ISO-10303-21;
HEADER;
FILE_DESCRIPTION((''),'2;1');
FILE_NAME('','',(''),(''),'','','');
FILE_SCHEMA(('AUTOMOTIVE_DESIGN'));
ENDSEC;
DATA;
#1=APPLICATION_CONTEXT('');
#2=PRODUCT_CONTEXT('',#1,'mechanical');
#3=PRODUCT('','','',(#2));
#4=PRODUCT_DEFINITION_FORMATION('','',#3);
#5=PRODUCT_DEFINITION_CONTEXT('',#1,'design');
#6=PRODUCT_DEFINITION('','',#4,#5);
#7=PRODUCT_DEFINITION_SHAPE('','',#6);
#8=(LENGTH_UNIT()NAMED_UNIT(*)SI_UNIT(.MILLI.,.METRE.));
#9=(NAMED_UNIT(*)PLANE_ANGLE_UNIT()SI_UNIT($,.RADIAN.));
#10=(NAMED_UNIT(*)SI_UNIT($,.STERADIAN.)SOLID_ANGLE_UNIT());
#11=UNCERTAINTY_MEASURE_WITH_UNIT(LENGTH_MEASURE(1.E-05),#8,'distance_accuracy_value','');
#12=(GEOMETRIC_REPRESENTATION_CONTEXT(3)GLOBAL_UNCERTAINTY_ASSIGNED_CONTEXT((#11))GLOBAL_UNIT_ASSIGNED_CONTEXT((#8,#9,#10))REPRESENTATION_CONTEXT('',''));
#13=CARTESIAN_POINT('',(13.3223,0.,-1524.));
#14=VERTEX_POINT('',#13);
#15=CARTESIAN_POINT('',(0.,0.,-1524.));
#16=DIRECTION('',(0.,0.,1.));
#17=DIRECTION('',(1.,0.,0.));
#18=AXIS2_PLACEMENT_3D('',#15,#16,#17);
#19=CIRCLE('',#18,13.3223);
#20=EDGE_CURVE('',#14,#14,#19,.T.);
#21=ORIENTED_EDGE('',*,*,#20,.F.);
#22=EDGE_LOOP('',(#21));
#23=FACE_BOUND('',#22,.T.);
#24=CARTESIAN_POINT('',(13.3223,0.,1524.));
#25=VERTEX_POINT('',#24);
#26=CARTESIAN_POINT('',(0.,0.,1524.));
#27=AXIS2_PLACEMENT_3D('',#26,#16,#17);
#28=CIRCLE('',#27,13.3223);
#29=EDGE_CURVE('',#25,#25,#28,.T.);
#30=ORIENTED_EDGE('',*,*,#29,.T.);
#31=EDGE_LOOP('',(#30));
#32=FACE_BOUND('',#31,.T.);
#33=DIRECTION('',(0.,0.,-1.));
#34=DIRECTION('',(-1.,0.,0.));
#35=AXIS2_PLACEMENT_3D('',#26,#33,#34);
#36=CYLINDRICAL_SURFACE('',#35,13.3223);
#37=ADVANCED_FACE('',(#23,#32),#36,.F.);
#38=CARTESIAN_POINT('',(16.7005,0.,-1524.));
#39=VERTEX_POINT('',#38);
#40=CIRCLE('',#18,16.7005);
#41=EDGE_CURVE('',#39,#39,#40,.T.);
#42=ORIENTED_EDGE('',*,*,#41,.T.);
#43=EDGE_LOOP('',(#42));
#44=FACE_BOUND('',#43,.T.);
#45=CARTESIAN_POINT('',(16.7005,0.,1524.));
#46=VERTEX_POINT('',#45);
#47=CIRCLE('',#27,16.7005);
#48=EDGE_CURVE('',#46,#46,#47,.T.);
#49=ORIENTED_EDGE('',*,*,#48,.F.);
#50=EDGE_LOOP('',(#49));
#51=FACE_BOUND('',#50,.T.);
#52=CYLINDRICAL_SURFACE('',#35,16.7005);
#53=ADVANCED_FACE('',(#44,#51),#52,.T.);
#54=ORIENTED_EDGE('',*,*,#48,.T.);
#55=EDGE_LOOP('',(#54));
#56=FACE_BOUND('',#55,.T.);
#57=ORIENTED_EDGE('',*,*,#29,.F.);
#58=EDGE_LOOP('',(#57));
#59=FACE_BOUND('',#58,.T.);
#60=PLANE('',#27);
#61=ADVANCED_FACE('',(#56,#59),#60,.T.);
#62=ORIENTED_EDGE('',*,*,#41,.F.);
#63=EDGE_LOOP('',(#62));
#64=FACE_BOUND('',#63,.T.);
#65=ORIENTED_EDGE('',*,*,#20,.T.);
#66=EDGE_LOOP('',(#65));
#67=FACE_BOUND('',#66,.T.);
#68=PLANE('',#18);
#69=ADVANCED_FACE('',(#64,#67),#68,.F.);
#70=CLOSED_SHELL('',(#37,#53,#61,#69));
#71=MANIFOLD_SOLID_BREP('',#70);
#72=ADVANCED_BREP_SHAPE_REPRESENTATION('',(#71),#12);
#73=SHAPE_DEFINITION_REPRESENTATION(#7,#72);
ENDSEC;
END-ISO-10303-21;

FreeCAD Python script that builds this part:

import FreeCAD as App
import Part
import Sketcher
from FreeCAD import Vector
Q = App.Units.Quantity

doc = App.newDocument("Part")
params = doc.addObject("Spreadsheet::Sheet", "Params")
for row, (alias, value) in enumerate([
    ("sketch1_diameter", "1.315 in"),
    ("sketch1_diameter2", "1.049 in"),
    ("pad1_length", "120 in"),
], start=1):
    params.set(f"A{row}", alias)
    params.set(f"B{row}", "=" + value)
    params.setAlias(f"B{row}", alias)

body = doc.addObject("PartDesign::Body", "Body")

# Sketch on XY plane
sketch1 = body.newObject("Sketcher::SketchObject", "Sketch")
sketch1.AttachmentSupport = (doc.getObject("XY_Plane"), [""])
sketch1.MapMode = "FlatFace"
sketch1.addGeometry([
    Part.Circle(Vector(0, 0, 0), Vector(0, 0, 1), 17),
    Part.Circle(Vector(0, 0, 0), Vector(0, 0, 1), 13),
], False)
sketch1.addConstraint([
    Sketcher.Constraint("Coincident", 0, 3, -1, 1),
    Sketcher.Constraint("Coincident", 1, 3, -1, 1),
    Sketcher.Constraint("Diameter", 0, Q("1.315 in")),
    Sketcher.Constraint("Diameter", 1, Q("1.049 in")),
])
sketch1.setExpression("Constraints[2]", "Params.sketch1_diameter")
sketch1.setExpression("Constraints[3]", "Params.sketch1_diameter2")
pad1 = body.newObject("PartDesign::Pad", "Pad")
pad1.Profile = sketch1
pad1.setExpression("Length", "Params.pad1_length")
pad1.Midplane = True

doc.recompute()
